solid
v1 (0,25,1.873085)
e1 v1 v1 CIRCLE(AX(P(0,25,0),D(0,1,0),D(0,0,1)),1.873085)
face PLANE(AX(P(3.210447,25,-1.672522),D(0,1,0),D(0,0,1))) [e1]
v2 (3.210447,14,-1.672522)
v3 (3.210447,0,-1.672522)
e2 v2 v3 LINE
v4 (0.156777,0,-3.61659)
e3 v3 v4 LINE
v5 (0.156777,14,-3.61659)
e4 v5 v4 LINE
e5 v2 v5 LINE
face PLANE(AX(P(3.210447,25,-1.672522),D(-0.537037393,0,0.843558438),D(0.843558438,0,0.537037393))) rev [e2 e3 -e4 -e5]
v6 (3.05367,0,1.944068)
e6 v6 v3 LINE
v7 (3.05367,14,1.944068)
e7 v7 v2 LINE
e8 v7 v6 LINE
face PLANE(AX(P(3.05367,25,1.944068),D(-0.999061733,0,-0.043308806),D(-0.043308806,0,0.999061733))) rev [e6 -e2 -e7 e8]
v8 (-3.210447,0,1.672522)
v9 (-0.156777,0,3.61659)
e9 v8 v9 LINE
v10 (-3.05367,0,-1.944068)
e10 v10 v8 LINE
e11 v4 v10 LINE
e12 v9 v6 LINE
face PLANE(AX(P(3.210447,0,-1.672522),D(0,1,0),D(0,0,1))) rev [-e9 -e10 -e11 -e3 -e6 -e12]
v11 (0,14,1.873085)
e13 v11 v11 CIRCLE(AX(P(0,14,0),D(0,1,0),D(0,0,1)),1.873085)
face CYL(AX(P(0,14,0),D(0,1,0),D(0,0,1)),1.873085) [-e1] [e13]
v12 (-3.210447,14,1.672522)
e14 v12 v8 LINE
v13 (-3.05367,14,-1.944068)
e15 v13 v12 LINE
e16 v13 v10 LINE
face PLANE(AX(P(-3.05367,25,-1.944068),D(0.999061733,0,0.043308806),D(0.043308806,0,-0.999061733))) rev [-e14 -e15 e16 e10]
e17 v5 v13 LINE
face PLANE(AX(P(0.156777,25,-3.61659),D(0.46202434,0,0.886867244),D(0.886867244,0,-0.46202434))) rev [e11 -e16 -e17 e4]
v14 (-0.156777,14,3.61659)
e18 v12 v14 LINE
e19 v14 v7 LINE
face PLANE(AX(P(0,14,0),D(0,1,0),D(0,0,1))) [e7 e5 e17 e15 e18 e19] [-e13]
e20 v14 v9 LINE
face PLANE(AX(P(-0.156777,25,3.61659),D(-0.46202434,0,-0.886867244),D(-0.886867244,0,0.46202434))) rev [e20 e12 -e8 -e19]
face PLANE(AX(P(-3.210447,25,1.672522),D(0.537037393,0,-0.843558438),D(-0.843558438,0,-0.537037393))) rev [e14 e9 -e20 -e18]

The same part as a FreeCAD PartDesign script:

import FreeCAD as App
import Part
import Sketcher
Q = App.Units.Quantity

doc = App.newDocument("Part")
body = doc.addObject("PartDesign::Body", "Body")

# Sketch on XZ plane
sketch1 = doc.addObject("Sketcher::SketchObject", "Sketch")
body.addObject(sketch1)
sketch1.AttachmentSupport = (doc.XZ_Plane, [""])
sketch1.MapMode = "FlatFace"
sketch1.addGeometry([
    Part.LineSegment(App.Vector(3.2, -1.7, 0), App.Vector(0.2, -3.6, 0)),  # 0
    Part.LineSegment(App.Vector(0.2, -3.6, 0), App.Vector(-3.1, -1.9, 0)),  # 1
    Part.LineSegment(App.Vector(-3.1, -1.9, 0), App.Vector(-3.2, 1.7, 0)),  # 2
    Part.LineSegment(App.Vector(-3.2, 1.7, 0), App.Vector(-0.2, 3.6, 0)),  # 3
    Part.LineSegment(App.Vector(-0.2, 3.6, 0), App.Vector(3.1, 1.9, 0)),  # 4
    Part.LineSegment(App.Vector(3.1, 1.9, 0), App.Vector(3.2, -1.7, 0)),  # 5
], False)
sketch1.addConstraint([
    Sketcher.Constraint("Coincident", 0, 2, 1, 1),
    Sketcher.Constraint("Coincident", 1, 2, 2, 1),
    Sketcher.Constraint("Coincident", 2, 2, 3, 1),
    Sketcher.Constraint("Coincident", 3, 2, 4, 1),
    Sketcher.Constraint("Coincident", 4, 2, 5, 1),
    Sketcher.Constraint("Coincident", 5, 2, 0, 1),
    Sketcher.Constraint("Symmetric", 0, 2, 3, 2, -1, 1),
    Sketcher.Constraint("Symmetric", 1, 2, 4, 2, -1, 1),
    Sketcher.Constraint("Symmetric", 2, 2, 5, 2, -1, 1),
    Sketcher.Constraint("Equal", 0, 1),
    Sketcher.Constraint("Equal", 1, 2),
    Sketcher.Constraint("DistanceY", 0, 2, -1, 1, Q("3.61659 mm")),
    Sketcher.Constraint("DistanceX", 1, 2, -1, 1, Q("3.05367 mm")),
    Sketcher.Constraint("DistanceY", -1, 1, 2, 2, Q("1.672522 mm")),
    Sketcher.Constraint("DistanceY", 0, 2, 1, 2, Q("1.672522 mm")),
])
pad1 = doc.addObject("PartDesign::Pad", "Pad")
body.addObject(pad1)
pad1.Profile = sketch1
pad1.Length = 25
pad1.Reversed = True

# Sketch on XZ plane
sketch2 = doc.addObject("Sketcher::SketchObject", "Sketch001")
body.addObject(sketch2)
sketch2.AttachmentSupport = (doc.XZ_Plane, [""])
sketch2.MapMode = "FlatFace"
sketch2.AttachmentOffset = App.Placement(App.Vector(0, 0, -25), App.Rotation())
sketch2.addGeometry([
    Part.LineSegment(App.Vector(-6.9, -7.3, 0), App.Vector(-6.9, 7.3, 0)),  # 0
    Part.LineSegment(App.Vector(-6.9, 7.3, 0), App.Vector(6.9, 7.3, 0)),  # 1
    Part.LineSegment(App.Vector(6.9, 7.3, 0), App.Vector(6.9, -7.3, 0)),  # 2
    Part.LineSegment(App.Vector(6.9, -7.3, 0), App.Vector(-6.9, -7.3, 0)),  # 3
    Part.Circle(App.Vector(0, 0, 0), App.Vector(0, 0, 1), 1.9),  # 4
], False)
sketch2.addConstraint([
    Sketcher.Constraint("Coincident", 0, 2, 1, 1),
    Sketcher.Constraint("Coincident", 1, 2, 2, 1),
    Sketcher.Constraint("Coincident", 2, 2, 3, 1),
    Sketcher.Constraint("Coincident", 3, 2, 0, 1),
    Sketcher.Constraint("Vertical", 0),
    Sketcher.Constraint("Horizontal", 1),
    Sketcher.Constraint("Vertical", 2),
    Sketcher.Constraint("Horizontal", 3),
    Sketcher.Constraint("Coincident", 4, 3, -1, 1),
    Sketcher.Constraint("Symmetric", 0, 2, 2, 2, -1, 1),
    Sketcher.Constraint("Diameter", 4, Q("3.74617 mm")),
    Sketcher.Constraint("DistanceX", 1, 1, 1, 2, Q("13.782 mm")),
    Sketcher.Constraint("DistanceY", 0, 1, 0, 2, Q("14.596 mm")),
])
pocket1 = doc.addObject("PartDesign::Pocket", "Pocket")
body.addObject(pocket1)
pocket1.Profile = sketch2
pocket1.Length = 11
pocket1.Reversed = True

doc.recompute()
